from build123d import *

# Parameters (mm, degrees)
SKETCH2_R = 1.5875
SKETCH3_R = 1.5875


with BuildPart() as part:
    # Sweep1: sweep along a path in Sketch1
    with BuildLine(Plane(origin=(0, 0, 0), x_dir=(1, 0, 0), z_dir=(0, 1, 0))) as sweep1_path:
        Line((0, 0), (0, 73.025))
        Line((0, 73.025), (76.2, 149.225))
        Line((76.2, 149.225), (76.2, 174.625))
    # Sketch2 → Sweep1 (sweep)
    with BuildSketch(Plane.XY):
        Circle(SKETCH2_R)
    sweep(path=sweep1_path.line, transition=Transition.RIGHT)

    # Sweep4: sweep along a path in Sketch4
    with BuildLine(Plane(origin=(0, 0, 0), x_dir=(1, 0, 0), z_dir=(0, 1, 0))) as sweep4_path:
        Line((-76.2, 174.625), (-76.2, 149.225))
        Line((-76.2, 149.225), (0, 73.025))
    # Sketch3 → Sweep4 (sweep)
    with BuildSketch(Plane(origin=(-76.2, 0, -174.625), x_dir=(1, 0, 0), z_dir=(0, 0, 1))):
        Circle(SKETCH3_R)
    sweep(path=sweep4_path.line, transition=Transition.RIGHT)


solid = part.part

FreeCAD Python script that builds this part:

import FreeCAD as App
import Part
import Sketcher

V = App.Vector
Q = App.Units.Quantity

doc = App.newDocument("Part")
body = doc.addObject("PartDesign::Body", "Body")

sketch1 = doc.addObject("Sketcher::SketchObject", "Sketch")
body.addObject(sketch1)
sketch1.AttachmentSupport = (doc.XY_Plane, [""])
sketch1.MapMode = "FlatFace"
sketch1.addGeometry(Part.Circle(V(0, 0, 0), V(0, 0, 1), 1.5875), False)
sketch1.addConstraint(Sketcher.Constraint("Coincident", 0, 3, -1, 1))
sketch1.addConstraint(Sketcher.Constraint("Diameter", 0, Q("0.125 in")))

sketch2 = doc.addObject("Sketcher::SketchObject", "Sketch001")
body.addObject(sketch2)
sketch2.AttachmentSupport = (doc.XZ_Plane, [""])
sketch2.MapMode = "FlatFace"
sketch2.addGeometry(Part.LineSegment(V(0, 0, 0), V(0, -73.025, 0)), False)
sketch2.addGeometry(Part.LineSegment(V(0, -73.025, 0), V(76.2, -149.225, 0)), False)
sketch2.addGeometry(Part.LineSegment(V(76.2, -149.225, 0), V(76.2, -174.625, 0)), False)
sketch2.addConstraint(Sketcher.Constraint("Coincident", 0, 2, 1, 1))
sketch2.addConstraint(Sketcher.Constraint("Coincident", 1, 2, 2, 1))
sketch2.addConstraint(Sketcher.Constraint("Vertical", 0))
sketch2.addConstraint(Sketcher.Constraint("Vertical", 2))
sketch2.addConstraint(Sketcher.Constraint("Coincident", 0, 1, -1, 1))
sketch2.addConstraint(Sketcher.Constraint("DistanceY", 2, 2, 2, 1, Q("1 in")))
sketch2.addConstraint(Sketcher.Constraint("DistanceX", -1, 1, 1, 2, Q("3 in")))
sketch2.addConstraint(Sketcher.Constraint("Angle", 1, Q("-45 deg")))
sketch2.addConstraint(Sketcher.Constraint("DistanceY", 0, 2, 0, 1, Q("2.875 in")))
doc.recompute()

additivepipe = doc.addObject("PartDesign::AdditivePipe", "AdditivePipe")
body.addObject(additivepipe)
additivepipe.Profile = sketch1
additivepipe.Spine = (sketch2, ["Edge1", "Edge2", "Edge3"])
additivepipe.Transition = "Right corner"

sketch3 = doc.addObject("Sketcher::SketchObject", "Sketch002")
body.addObject(sketch3)
sketch3.AttachmentSupport = (doc.XY_Plane, [""])
sketch3.MapMode = "FlatFace"
sketch3.AttachmentOffset = App.Placement(V(0, 0, -6.875 * 25.4), App.Rotation())
sketch3.addGeometry(Part.Circle(V(-76.2, 0, 0), V(0, 0, 1), 1.5875), False)
sketch3.addConstraint(Sketcher.Constraint("PointOnObject", 0, 3, -1))
sketch3.addConstraint(Sketcher.Constraint("Diameter", 0, Q("0.125 in")))
sketch3.addConstraint(Sketcher.Constraint("DistanceX", 0, 3, -1, 1, Q("3 in")))

sketch4 = doc.addObject("Sketcher::SketchObject", "Sketch003")
body.addObject(sketch4)
sketch4.AttachmentSupport = (doc.XZ_Plane, [""])
sketch4.MapMode = "FlatFace"
sketch4.addGeometry(Part.LineSegment(V(-76.2, -174.625, 0), V(-76.2, -149.225, 0)), False)
sketch4.addGeometry(Part.LineSegment(V(-76.2, -149.225, 0), V(0, -73.025, 0)), False)
sketch4.addConstraint(Sketcher.Constraint("Coincident", 0, 2, 1, 1))
sketch4.addConstraint(Sketcher.Constraint("Vertical", 0))
sketch4.addConstraint(Sketcher.Constraint("PointOnObject", 1, 2, -2))
sketch4.addConstraint(Sketcher.Constraint("DistanceY", 0, 1, 0, 2, Q("1 in")))
sketch4.addConstraint(Sketcher.Constraint("DistanceX", 0, 1, -1, 1, Q("3 in")))
sketch4.addConstraint(Sketcher.Constraint("Angle", 1, Q("45 deg")))
sketch4.addConstraint(Sketcher.Constraint("DistanceY", 0, 1, -1, 1, Q("6.875 in")))
doc.recompute()

additivepipe2 = doc.addObject("PartDesign::AdditivePipe", "AdditivePipe001")
body.addObject(additivepipe2)
additivepipe2.Profile = sketch3
additivepipe2.Spine = (sketch4, ["Edge1", "Edge2"])
additivepipe2.Transition = "Right corner"

doc.recompute()
